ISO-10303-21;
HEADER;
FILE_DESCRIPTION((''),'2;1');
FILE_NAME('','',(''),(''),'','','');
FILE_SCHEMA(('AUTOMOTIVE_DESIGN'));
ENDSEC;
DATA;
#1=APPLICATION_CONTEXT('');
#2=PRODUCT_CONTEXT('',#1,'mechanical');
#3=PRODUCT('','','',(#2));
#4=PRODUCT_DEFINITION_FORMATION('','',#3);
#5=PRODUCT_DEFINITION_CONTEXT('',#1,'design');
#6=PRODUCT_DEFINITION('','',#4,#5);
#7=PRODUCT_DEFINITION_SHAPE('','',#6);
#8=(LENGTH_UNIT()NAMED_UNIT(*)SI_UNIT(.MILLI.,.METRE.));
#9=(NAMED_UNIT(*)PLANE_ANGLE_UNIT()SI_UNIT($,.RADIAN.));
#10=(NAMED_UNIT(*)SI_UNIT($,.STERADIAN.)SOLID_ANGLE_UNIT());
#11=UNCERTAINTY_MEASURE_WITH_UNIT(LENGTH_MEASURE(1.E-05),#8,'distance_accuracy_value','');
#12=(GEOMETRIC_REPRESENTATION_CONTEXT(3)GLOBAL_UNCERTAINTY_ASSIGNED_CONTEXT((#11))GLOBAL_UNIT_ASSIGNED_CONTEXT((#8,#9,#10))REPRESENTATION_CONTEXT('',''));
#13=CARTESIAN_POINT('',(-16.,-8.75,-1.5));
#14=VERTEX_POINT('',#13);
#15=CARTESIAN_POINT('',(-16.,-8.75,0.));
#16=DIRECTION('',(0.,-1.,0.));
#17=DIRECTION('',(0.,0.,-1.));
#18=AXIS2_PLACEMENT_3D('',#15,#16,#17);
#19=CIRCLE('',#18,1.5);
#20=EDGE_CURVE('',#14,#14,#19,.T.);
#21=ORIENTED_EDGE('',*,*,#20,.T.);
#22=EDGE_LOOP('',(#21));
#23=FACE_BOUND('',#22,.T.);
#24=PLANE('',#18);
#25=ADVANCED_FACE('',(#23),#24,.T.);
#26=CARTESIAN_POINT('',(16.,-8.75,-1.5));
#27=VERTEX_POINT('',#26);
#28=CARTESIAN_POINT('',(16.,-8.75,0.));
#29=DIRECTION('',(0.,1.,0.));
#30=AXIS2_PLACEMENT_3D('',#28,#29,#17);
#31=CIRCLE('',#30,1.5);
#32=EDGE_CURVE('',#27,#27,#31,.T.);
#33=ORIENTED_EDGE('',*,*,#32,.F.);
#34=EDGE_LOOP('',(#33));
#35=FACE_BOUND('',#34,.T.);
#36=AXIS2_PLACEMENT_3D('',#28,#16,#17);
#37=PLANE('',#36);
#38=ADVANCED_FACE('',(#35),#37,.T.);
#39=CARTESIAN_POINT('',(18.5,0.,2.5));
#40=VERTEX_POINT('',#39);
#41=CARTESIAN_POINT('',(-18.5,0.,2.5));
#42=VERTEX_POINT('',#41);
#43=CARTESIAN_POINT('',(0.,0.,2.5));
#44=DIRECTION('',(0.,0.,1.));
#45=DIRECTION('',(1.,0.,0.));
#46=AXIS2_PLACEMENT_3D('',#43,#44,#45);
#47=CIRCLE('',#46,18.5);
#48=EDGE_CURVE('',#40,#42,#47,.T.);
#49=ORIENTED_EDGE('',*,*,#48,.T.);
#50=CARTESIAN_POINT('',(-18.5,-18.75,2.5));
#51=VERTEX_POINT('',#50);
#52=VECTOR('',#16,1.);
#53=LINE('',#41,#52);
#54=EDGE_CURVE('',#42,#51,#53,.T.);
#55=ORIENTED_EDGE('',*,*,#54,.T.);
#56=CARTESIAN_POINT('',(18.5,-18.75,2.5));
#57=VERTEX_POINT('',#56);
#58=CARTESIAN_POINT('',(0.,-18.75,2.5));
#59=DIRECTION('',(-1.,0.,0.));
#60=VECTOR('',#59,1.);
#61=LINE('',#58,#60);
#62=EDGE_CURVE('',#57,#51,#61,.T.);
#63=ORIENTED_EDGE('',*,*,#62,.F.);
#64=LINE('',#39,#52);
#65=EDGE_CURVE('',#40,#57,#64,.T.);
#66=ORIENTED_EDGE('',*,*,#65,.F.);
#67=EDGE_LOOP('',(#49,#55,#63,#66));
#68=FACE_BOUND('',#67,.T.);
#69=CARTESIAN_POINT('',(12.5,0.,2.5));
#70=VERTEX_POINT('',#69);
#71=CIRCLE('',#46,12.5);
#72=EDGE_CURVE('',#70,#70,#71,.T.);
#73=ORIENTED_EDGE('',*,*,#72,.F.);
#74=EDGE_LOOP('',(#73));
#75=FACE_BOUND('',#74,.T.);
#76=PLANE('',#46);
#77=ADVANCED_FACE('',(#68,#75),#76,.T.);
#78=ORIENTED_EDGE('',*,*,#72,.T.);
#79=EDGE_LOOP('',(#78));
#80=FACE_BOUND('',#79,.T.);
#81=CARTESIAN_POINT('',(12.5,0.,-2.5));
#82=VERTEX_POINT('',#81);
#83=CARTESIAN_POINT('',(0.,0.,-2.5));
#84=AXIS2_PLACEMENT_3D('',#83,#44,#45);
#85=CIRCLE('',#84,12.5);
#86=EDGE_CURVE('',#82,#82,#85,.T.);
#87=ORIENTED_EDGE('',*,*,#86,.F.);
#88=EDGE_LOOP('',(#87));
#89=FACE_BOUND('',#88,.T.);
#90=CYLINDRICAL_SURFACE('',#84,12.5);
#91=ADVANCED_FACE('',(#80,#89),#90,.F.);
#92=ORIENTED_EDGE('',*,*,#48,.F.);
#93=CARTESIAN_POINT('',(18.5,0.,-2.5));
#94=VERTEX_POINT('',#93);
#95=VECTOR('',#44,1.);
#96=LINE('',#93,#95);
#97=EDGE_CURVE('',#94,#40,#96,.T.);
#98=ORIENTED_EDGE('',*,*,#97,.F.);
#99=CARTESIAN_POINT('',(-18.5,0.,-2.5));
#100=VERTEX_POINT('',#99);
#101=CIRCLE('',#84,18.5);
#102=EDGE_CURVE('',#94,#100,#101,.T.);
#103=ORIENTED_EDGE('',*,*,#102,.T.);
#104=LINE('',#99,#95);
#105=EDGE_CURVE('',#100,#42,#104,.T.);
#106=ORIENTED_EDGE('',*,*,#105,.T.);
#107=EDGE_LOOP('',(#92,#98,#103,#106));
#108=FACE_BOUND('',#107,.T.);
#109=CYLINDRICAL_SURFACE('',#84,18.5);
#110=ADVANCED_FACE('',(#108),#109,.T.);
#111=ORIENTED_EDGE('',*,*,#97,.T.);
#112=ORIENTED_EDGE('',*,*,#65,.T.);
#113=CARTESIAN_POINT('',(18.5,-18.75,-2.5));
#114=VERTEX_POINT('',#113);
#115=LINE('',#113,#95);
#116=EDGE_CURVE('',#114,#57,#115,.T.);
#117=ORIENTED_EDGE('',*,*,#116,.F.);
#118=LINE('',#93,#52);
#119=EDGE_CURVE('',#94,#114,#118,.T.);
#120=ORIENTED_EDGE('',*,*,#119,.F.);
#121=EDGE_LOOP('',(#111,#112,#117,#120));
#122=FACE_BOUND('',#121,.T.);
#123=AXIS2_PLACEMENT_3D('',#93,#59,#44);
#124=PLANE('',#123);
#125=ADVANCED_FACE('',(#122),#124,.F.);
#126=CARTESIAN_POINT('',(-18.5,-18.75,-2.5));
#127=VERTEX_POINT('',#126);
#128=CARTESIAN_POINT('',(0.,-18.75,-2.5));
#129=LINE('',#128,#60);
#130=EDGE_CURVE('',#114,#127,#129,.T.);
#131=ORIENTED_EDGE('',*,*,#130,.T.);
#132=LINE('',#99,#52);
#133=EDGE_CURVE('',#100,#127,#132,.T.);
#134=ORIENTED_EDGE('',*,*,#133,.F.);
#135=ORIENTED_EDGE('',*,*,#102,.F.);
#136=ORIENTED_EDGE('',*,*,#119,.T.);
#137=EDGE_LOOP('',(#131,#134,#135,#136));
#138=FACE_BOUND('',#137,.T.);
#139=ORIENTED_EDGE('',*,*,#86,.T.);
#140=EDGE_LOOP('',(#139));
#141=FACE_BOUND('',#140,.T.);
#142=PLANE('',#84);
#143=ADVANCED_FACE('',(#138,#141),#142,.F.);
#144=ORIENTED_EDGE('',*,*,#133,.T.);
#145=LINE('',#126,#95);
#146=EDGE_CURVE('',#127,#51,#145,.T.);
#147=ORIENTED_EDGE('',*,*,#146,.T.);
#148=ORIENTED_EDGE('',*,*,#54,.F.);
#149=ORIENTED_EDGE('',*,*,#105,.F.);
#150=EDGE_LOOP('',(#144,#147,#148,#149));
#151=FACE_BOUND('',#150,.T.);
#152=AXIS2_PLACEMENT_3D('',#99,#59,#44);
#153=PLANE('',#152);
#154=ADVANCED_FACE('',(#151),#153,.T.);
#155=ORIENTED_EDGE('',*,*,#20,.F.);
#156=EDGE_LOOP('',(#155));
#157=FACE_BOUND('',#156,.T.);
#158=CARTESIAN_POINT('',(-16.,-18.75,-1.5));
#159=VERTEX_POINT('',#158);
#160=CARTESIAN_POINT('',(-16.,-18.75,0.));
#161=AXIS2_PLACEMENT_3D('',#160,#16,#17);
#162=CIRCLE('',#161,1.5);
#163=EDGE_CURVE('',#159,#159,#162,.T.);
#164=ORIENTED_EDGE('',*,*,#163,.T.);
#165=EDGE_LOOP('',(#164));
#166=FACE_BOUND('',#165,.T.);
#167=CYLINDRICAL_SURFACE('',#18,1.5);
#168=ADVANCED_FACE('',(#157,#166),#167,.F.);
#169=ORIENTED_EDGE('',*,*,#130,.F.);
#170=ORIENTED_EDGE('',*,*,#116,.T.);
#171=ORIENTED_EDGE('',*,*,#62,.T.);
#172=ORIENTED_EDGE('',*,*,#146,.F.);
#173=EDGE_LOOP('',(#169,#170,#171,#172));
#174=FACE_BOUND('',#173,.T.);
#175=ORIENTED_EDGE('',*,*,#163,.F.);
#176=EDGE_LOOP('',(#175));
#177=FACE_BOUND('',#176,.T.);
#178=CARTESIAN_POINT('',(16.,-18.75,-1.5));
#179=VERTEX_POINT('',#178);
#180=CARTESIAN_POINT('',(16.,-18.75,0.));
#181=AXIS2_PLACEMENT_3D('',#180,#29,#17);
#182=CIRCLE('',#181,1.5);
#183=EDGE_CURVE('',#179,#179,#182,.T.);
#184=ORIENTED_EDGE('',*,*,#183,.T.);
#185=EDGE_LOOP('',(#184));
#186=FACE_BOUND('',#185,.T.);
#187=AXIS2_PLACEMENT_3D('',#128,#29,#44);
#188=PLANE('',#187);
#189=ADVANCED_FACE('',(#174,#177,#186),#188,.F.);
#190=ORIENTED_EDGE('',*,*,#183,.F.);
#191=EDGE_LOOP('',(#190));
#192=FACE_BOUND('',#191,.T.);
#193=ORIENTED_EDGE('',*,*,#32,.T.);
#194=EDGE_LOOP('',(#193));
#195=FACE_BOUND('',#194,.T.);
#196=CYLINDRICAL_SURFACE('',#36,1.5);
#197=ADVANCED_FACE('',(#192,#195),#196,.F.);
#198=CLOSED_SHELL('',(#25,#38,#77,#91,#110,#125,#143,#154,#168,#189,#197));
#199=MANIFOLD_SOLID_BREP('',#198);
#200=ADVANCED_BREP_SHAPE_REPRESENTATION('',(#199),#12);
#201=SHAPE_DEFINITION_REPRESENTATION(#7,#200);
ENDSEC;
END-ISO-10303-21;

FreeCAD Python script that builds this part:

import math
import FreeCAD as App
import Part
import Sketcher
from FreeCAD import Vector

doc = App.newDocument("Part")
params = doc.addObject("Spreadsheet::Sheet", "Params")
for row, (alias, value) in enumerate([
    ("sketch1_diameter", "25 mm"),
    ("sketch1_radius", "18.5 mm"),
    ("sketch1_height", "18.75 mm"),
    ("pad1_length", "2.5 mm"),
    ("pad1_length2", "2.5 mm"),
    ("sketch2_diameter", "3 mm"),
    ("pocket1_length", "10 mm"),
], start=1):
    params.set(f"A{row}", alias)
    params.set(f"B{row}", "=" + value)
    params.setAlias(f"B{row}", alias)

body = doc.addObject("PartDesign::Body", "Body")

# Sketch on XY plane
sketch1 = body.newObject("Sketcher::SketchObject", "Sketch")
sketch1.AttachmentSupport = (doc.getObject("XY_Plane"), [""])
sketch1.MapMode = "FlatFace"
sketch1.addGeometry([
    Part.LineSegment(Vector(-18, 0, 0), Vector(-18, -19, 0)),  # 0
    Part.LineSegment(Vector(-18, -19, 0), Vector(18, -19, 0)),  # 1
    Part.LineSegment(Vector(18, -19, 0), Vector(18, 0, 0)),  # 2
    Part.ArcOfCircle(Part.Circle(Vector(0, 0, 0), Vector(0, 0, 1), 18), math.radians(0), math.radians(180)),  # 3
    Part.Circle(Vector(0, 0, 0), Vector(0, 0, 1), 12),  # 4
], False)
sketch1.addConstraint([
    Sketcher.Constraint("Coincident", 0, 2, 1, 1),
    Sketcher.Constraint("Coincident", 1, 2, 2, 1),
    Sketcher.Constraint("Tangent", 2, 2, 3, 1),
    Sketcher.Constraint("Tangent", 3, 2, 0, 1),
    Sketcher.Constraint("Vertical", 0),
    Sketcher.Constraint("Horizontal", 1),
    Sketcher.Constraint("Vertical", 2),
    Sketcher.Constraint("Coincident", 3, 3, -1, 1),
    Sketcher.Constraint("Coincident", 4, 3, -1, 1),
    Sketcher.Constraint("Diameter", 4, 25.0),
    Sketcher.Constraint("Radius", 3, 18.5),
    Sketcher.Constraint("DistanceY", 0, 2, 0, 1, 18.75),
])
sketch1.setExpression("Constraints[9]", "Params.sketch1_diameter")
sketch1.setExpression("Constraints[10]", "Params.sketch1_radius")
sketch1.setExpression("Constraints[11]", "Params.sketch1_height")
pad1 = body.newObject("PartDesign::Pad", "Pad")
pad1.Profile = sketch1
pad1.Type = "TwoLengths"
pad1.setExpression("Length", "Params.pad1_length")
pad1.setExpression("Length2", "Params.pad1_length2")

# Sketch on XZ plane
sketch2 = body.newObject("Sketcher::SketchObject", "Sketch001")
sketch2.AttachmentSupport = (doc.getObject("XZ_Plane"), [""])
sketch2.MapMode = "FlatFace"
sketch2.AttachmentOffset = App.Placement(Vector(0, 0, 18.75), App.Rotation())
sketch2.addGeometry(Part.Circle(Vector(-16, 0, 0), Vector(0, 0, 1), 1.5), False)
sketch2.addConstraint([
    Sketcher.Constraint("PointOnObject", 0, 3, -1),
    Sketcher.Constraint("Diameter", 0, 3.0),
    Sketcher.Constraint("DistanceX", 0, 3, -1, 1, 16.0),
])
sketch2.setExpression("Constraints[1]", "Params.sketch2_diameter")
pocket1 = body.newObject("PartDesign::Pocket", "Pocket")
pocket1.Profile = sketch2
pocket1.setExpression("Length", "Params.pocket1_length")
doc.recompute()

mirrored = body.newObject("PartDesign::Mirrored", "Mirrored")
mirrored.Originals = [pocket1]
mirrored.MirrorPlane = (doc.getObject("YZ_Plane"), [""])
body.Tip = mirrored

doc.recompute()
